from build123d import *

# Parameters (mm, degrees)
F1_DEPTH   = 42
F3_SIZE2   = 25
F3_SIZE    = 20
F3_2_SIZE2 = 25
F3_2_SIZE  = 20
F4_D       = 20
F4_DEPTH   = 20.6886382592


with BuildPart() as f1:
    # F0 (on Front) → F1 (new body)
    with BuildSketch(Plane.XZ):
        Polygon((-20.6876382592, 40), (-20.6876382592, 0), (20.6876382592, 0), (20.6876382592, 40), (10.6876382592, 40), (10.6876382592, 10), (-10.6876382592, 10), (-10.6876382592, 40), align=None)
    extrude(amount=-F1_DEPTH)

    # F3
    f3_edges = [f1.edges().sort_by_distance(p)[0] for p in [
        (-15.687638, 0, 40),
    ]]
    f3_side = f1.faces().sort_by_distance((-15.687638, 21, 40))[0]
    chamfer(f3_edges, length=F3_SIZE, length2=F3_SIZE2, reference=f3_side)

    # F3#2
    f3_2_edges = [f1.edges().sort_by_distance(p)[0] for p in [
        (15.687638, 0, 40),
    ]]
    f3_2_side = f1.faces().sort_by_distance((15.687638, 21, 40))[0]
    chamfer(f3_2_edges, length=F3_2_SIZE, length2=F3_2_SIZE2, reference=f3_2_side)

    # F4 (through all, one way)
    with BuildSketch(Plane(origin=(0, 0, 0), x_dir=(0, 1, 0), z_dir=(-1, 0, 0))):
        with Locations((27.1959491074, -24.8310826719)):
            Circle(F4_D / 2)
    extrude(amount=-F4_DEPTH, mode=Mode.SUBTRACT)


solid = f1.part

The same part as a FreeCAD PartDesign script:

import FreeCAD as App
import Part
import Sketcher


def edges_at(feature, points):
    """Names of the edges that pass closest to the given points."""
    edges = feature.Shape.Edges
    near = lambda p: min(range(len(edges)), key=lambda i: edges[i].distToShape(Part.Vertex(*p))[0])
    return sorted({f"Edge{near(p) + 1}" for p in points})

doc = App.newDocument("Part")
body = doc.addObject("PartDesign::Body", "Body")

# Sketch on XZ plane
sketch1 = doc.addObject("Sketcher::SketchObject", "Sketch")
body.addObject(sketch1)
sketch1.AttachmentSupport = (doc.XZ_Plane, [""])
sketch1.MapMode = "FlatFace"
sketch1.addGeometry(Part.LineSegment(App.Vector(-20.687638, 40, 0), App.Vector(-20.687638, 0, 0)), False)
sketch1.addGeometry(Part.LineSegment(App.Vector(-20.687638, 0, 0), App.Vector(20.687638, 0, 0)), False)
sketch1.addGeometry(Part.LineSegment(App.Vector(20.687638, 0, 0), App.Vector(20.687638, 40, 0)), False)
sketch1.addGeometry(Part.LineSegment(App.Vector(20.687638, 40, 0), App.Vector(10.687638, 40, 0)), False)
sketch1.addGeometry(Part.LineSegment(App.Vector(10.687638, 40, 0), App.Vector(10.687638, 10, 0)), False)
sketch1.addGeometry(Part.LineSegment(App.Vector(10.687638, 10, 0), App.Vector(-10.687638, 10, 0)), False)
sketch1.addGeometry(Part.LineSegment(App.Vector(-10.687638, 10, 0), App.Vector(-10.687638, 40, 0)), False)
sketch1.addGeometry(Part.LineSegment(App.Vector(-10.687638, 40, 0), App.Vector(-20.687638, 40, 0)), False)
sketch1.addConstraint(Sketcher.Constraint("Coincident", 0, 2, 1, 1))
sketch1.addConstraint(Sketcher.Constraint("Coincident", 1, 2, 2, 1))
sketch1.addConstraint(Sketcher.Constraint("Coincident", 2, 2, 3, 1))
sketch1.addConstraint(Sketcher.Constraint("Coincident", 3, 2, 4, 1))
sketch1.addConstraint(Sketcher.Constraint("Coincident", 4, 2, 5, 1))
sketch1.addConstraint(Sketcher.Constraint("Coincident", 5, 2, 6, 1))
sketch1.addConstraint(Sketcher.Constraint("Coincident", 6, 2, 7, 1))
sketch1.addConstraint(Sketcher.Constraint("Coincident", 7, 2, 0, 1))
sketch1.addConstraint(Sketcher.Constraint("Vertical", 0))
sketch1.addConstraint(Sketcher.Constraint("Horizontal", 1))
sketch1.addConstraint(Sketcher.Constraint("Vertical", 2))
sketch1.addConstraint(Sketcher.Constraint("Horizontal", 3))
sketch1.addConstraint(Sketcher.Constraint("Vertical", 4))
sketch1.addConstraint(Sketcher.Constraint("Horizontal", 5))
sketch1.addConstraint(Sketcher.Constraint("Vertical", 6))
sketch1.addConstraint(Sketcher.Constraint("Horizontal", 7))
sketch1.addConstraint(Sketcher.Constraint("Symmetric", 0, 2, 1, 2, -1, 1))
sketch1.addConstraint(Sketcher.Constraint("Symmetric", 3, 2, 6, 2, -2))
sketch1.addConstraint(Sketcher.Constraint("DistanceX", 3, 2, 3, 1, 10.0))
sketch1.addConstraint(Sketcher.Constraint("DistanceY", 0, 2, 0, 1, 40.0))
sketch1.addConstraint(Sketcher.Constraint("DistanceY", 4, 2, 4, 1, 30.0))
sketch1.addConstraint(Sketcher.Constraint("DistanceX", 1, 1, 1, 2, 41.375277))
pad1 = doc.addObject("PartDesign::Pad", "Pad")
body.addObject(pad1)
pad1.Profile = sketch1
pad1.Length = 42
pad1.Reversed = True
doc.recompute()

chamfer = doc.addObject("PartDesign::Chamfer", "Chamfer")
body.addObject(chamfer)
chamfer.Base = (pad1, edges_at(pad1, [(-15.688, 0, 40)]))
chamfer.ChamferType = "Two distances"
chamfer.Size = 20
chamfer.Size2 = 25
doc.recompute()

chamfer2 = doc.addObject("PartDesign::Chamfer", "Chamfer001")
body.addObject(chamfer2)
chamfer2.Base = (chamfer, edges_at(chamfer, [(15.688, 0, 40)]))
chamfer2.ChamferType = "Two distances"
chamfer2.Size = 20
chamfer2.Size2 = 25
chamfer2.FlipDirection = True

# Sketch on YZ plane
sketch2 = doc.addObject("Sketcher::SketchObject", "Sketch001")
body.addObject(sketch2)
sketch2.AttachmentSupport = (doc.YZ_Plane, [""])
sketch2.MapMode = "FlatFace"
sketch2.addGeometry(Part.Circle(App.Vector(27.195949, 24.831083, 0), App.Vector(0, 0, 1), 10), False)
sketch2.addConstraint(Sketcher.Constraint("Diameter", 0, 20.0))
sketch2.addConstraint(Sketcher.Constraint("DistanceX", -1, 1, 0, 3, 27.195949))
sketch2.addConstraint(Sketcher.Constraint("DistanceY", -1, 1, 0, 3, 24.831083))
pocket1 = doc.addObject("PartDesign::Pocket", "Pocket")
body.addObject(pocket1)
pocket1.Profile = sketch2
pocket1.Type = "ThroughAll"
pocket1.Reversed = True

doc.recompute()
